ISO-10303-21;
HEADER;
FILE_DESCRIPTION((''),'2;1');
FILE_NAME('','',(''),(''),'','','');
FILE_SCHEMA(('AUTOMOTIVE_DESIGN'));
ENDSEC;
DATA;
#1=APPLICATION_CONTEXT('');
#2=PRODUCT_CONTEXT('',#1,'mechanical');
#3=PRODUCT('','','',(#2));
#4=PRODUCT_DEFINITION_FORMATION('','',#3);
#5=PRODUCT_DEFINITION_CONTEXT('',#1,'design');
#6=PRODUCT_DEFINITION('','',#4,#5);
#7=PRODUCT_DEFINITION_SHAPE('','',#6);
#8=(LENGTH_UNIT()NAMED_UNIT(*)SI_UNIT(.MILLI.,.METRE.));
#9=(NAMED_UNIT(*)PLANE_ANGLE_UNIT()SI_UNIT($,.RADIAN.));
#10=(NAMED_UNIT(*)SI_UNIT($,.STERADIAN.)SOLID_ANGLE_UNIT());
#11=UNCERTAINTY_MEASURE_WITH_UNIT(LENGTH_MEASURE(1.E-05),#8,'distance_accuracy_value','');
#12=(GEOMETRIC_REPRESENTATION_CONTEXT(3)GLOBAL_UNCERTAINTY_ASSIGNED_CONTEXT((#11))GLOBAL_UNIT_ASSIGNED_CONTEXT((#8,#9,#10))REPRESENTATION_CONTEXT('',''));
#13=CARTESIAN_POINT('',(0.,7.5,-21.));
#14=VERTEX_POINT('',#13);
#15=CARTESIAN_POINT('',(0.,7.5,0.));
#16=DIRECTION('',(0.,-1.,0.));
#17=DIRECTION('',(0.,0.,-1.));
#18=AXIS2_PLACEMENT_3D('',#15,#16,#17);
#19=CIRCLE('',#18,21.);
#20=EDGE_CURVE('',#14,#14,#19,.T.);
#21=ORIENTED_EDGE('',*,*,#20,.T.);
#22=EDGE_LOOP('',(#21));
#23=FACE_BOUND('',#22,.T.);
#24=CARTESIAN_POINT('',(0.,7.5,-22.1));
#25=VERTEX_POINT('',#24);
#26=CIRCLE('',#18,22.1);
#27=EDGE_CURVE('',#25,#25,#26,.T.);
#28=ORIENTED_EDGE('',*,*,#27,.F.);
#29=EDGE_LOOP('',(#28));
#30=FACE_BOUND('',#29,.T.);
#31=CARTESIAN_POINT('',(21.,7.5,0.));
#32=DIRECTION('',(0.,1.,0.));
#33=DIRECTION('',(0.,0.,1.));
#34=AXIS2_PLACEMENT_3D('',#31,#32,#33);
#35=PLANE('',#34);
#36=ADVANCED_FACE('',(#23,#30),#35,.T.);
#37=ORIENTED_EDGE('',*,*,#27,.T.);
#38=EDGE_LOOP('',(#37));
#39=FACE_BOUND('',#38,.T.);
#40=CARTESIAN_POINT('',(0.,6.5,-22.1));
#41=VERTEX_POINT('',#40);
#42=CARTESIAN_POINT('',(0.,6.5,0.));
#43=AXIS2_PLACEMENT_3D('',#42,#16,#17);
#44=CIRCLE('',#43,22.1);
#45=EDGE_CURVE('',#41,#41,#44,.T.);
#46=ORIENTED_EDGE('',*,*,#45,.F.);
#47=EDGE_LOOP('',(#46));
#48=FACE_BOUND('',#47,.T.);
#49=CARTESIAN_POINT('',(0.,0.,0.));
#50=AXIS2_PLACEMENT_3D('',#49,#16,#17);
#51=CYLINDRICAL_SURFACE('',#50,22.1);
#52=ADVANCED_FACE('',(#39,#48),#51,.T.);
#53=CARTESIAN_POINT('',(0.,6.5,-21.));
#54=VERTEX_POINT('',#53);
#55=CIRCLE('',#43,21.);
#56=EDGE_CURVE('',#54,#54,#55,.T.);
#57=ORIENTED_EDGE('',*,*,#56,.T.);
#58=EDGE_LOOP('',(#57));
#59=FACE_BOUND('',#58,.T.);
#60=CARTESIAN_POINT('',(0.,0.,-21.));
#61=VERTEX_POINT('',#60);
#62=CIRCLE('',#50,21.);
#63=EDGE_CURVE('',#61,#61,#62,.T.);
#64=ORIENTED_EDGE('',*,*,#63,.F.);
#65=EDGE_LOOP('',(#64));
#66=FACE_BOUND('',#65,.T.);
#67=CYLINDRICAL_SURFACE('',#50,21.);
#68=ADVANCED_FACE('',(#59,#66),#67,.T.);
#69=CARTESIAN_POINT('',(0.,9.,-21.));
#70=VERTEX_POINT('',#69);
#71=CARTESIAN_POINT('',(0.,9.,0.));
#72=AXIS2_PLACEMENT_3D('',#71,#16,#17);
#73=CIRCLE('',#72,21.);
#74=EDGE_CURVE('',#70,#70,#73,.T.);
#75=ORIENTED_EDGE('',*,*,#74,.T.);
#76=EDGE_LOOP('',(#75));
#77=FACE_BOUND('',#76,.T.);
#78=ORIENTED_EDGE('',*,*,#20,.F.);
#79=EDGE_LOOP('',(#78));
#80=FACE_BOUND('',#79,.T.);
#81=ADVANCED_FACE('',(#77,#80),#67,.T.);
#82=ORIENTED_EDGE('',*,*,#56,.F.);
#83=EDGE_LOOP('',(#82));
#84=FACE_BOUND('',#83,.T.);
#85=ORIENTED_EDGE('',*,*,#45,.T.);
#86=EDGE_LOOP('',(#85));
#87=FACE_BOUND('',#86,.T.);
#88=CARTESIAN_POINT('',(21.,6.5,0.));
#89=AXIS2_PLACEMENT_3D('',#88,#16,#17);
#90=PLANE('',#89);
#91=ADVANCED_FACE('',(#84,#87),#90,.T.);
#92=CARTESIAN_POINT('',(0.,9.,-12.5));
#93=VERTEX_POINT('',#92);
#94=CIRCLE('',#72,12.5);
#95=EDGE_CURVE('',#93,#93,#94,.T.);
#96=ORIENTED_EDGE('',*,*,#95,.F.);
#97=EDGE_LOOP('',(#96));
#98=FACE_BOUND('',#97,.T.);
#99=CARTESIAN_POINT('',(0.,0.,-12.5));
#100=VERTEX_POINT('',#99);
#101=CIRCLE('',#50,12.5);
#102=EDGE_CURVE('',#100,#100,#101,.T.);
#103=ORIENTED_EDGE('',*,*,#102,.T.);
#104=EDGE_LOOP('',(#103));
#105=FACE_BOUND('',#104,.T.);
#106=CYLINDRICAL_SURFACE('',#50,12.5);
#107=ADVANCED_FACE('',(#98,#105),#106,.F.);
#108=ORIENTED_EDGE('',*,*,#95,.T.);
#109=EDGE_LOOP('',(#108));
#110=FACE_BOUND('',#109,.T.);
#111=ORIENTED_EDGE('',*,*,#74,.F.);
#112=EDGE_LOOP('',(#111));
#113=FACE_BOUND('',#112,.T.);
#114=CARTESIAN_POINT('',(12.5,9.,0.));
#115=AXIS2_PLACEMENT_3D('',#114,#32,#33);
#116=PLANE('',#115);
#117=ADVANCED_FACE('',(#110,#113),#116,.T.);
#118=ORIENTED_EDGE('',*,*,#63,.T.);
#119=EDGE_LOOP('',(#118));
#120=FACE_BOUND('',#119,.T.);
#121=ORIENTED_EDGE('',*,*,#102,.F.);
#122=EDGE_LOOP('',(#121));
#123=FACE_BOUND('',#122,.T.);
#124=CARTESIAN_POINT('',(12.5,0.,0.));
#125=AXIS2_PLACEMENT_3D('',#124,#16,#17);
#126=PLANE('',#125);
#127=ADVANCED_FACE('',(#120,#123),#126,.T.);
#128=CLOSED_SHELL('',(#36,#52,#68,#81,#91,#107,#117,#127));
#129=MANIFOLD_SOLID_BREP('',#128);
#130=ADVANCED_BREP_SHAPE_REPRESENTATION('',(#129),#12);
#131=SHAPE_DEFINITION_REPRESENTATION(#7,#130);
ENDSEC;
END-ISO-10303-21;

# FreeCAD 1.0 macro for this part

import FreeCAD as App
import Part
import Sketcher


def add_polygon(sketch, points):
    """Adds a closed chain of lines whose ends are joined by coincident constraints."""
    first, n = sketch.GeometryCount, len(points)
    for a, b in zip(points, points[1:] + points[:1]):
        sketch.addGeometry(Part.LineSegment(App.Vector(*a, 0), App.Vector(*b, 0)), False)
    for i in range(n):
        sketch.addConstraint(Sketcher.Constraint("Coincident", first + i, 2, first + (i + 1) % n, 1))

doc = App.newDocument("Part")
params = doc.addObject("Spreadsheet::Sheet", "Params")
for row, (alias, value) in enumerate([
    ("sketch1_height", "9 mm"),
    ("sketch1_height2", "1 mm"),
    ("sketch1_width", "8.5 mm"),
    ("sketch1_width2", "1.1 mm"),
    ("sketch1_height3", "1.5 mm"),
    ("revolution_angle", "360 deg"),
], start=1):
    params.set(f"A{row}", alias)
    params.set(f"B{row}", "=" + value)
    params.setAlias(f"B{row}", alias)

body = doc.addObject("PartDesign::Body", "Body")

# Sketch on XY plane
sketch1 = body.newObject("Sketcher::SketchObject", "Sketch")
sketch1.AttachmentSupport = (doc.getObject("XY_Plane"), [""])
sketch1.MapMode = "FlatFace"
add_polygon(sketch1, [(21, 7.5), (21, 9), (12.5, 9), (12.5, 0), (21, 0), (21, 6.5), (22.1, 6.5), (22.1, 7.5)])  # lines 0-7
sketch1.addConstraint(Sketcher.Constraint("Vertical", 0))
sketch1.addConstraint(Sketcher.Constraint("Horizontal", 1))
sketch1.addConstraint(Sketcher.Constraint("Vertical", 2))
sketch1.addConstraint(Sketcher.Constraint("Horizontal", 3))
sketch1.addConstraint(Sketcher.Constraint("Vertical", 4))
sketch1.addConstraint(Sketcher.Constraint("Horizontal", 5))
sketch1.addConstraint(Sketcher.Constraint("Vertical", 6))
sketch1.addConstraint(Sketcher.Constraint("Horizontal", 7))
sketch1.addConstraint(Sketcher.Constraint("PointOnObject", 2, 2, -1))
sketch1.addConstraint(Sketcher.Constraint("Vertical", 0, 2, 3, 2))
sketch1.addConstraint(Sketcher.Constraint("DistanceY", 2, 2, 2, 1, 9.0))
sketch1.addConstraint(Sketcher.Constraint("DistanceY", 6, 1, 6, 2, 1.0))
sketch1.addConstraint(Sketcher.Constraint("DistanceX", 1, 2, 1, 1, 8.5))
sketch1.addConstraint(Sketcher.Constraint("DistanceX", 5, 1, 5, 2, 1.1))
sketch1.addConstraint(Sketcher.Constraint("DistanceY", 0, 1, 0, 2, 1.5))
sketch1.addConstraint(Sketcher.Constraint("DistanceX", -1, 1, 0, 2, 21.0))
sketch1.setExpression("Constraints[18]", "Params.sketch1_height")
sketch1.setExpression("Constraints[19]", "Params.sketch1_height2")
sketch1.setExpression("Constraints[20]", "Params.sketch1_width")
sketch1.setExpression("Constraints[21]", "Params.sketch1_width2")
sketch1.setExpression("Constraints[22]", "Params.sketch1_height3")
revolution = body.newObject("PartDesign::Revolution", "Revolution")
revolution.Profile = sketch1
revolution.ReferenceAxis = (sketch1, ["V_Axis"])
revolution.setExpression("Angle", "Params.revolution_angle")

doc.recompute()
